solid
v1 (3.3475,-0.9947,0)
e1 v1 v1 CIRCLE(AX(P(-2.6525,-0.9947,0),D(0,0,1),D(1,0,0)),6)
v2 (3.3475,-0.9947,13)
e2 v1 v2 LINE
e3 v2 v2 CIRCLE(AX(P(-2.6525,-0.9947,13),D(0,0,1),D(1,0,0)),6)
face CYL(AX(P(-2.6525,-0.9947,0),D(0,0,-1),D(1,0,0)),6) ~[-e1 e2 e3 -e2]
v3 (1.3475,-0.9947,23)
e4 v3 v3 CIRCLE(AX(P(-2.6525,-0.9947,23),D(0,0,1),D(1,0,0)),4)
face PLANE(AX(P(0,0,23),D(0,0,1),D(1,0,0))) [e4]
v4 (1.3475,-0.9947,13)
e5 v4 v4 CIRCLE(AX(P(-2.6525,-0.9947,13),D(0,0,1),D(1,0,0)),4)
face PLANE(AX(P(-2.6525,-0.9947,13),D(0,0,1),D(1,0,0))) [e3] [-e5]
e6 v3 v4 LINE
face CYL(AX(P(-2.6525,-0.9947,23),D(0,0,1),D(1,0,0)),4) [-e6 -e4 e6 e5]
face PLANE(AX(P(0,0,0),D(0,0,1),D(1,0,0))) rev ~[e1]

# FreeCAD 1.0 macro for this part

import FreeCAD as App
import Part
import Sketcher

V = App.Vector

doc = App.newDocument("Part")
body = doc.addObject("PartDesign::Body", "Body")

# Sketch on XY plane
sketch1 = body.newObject("Sketcher::SketchObject", "Sketch")
sketch1.AttachmentSupport = (doc.getObject("XY_Plane"), [""])
sketch1.MapMode = "FlatFace"
sketch1.addGeometry(Part.Circle(V(-2.6525, -0.9947, 0), V(0, 0, 1), 6), False)
sketch1.addConstraint(Sketcher.Constraint("Diameter", 0, 12.0))
sketch1.addConstraint(Sketcher.Constraint("DistanceX", 0, 3, -1, 1, 2.6525))
sketch1.addConstraint(Sketcher.Constraint("DistanceY", 0, 3, -1, 1, 0.9947))
pad1 = body.newObject("PartDesign::Pad", "Pad")
pad1.Profile = sketch1
pad1.Length = 23

# Sketch on XY plane
sketch2 = body.newObject("Sketcher::SketchObject", "Sketch001")
sketch2.AttachmentSupport = (doc.getObject("XY_Plane"), [""])
sketch2.MapMode = "FlatFace"
sketch2.AttachmentOffset = App.Placement(V(0, 0, 23), App.Rotation())
sketch2.addGeometry(Part.Circle(V(-2.6525, -0.9947, 0), V(0, 0, 1), 6), False)
sketch2.addGeometry(Part.Circle(V(-2.6525, -0.9947, 0), V(0, 0, 1), 4), False)
sketch2.addConstraint(Sketcher.Constraint("Coincident", 1, 3, 0, 3))
sketch2.addConstraint(Sketcher.Constraint("Diameter", 1, 8.0))
sketch2.addConstraint(Sketcher.Constraint("Diameter", 0, 12.0))
sketch2.addConstraint(Sketcher.Constraint("DistanceX", 0, 3, -1, 1, 2.6525))
sketch2.addConstraint(Sketcher.Constraint("DistanceY", 0, 3, -1, 1, 0.9947))
pocket1 = body.newObject("PartDesign::Pocket", "Pocket")
pocket1.Profile = sketch2
pocket1.Length = 10

doc.recompute()
